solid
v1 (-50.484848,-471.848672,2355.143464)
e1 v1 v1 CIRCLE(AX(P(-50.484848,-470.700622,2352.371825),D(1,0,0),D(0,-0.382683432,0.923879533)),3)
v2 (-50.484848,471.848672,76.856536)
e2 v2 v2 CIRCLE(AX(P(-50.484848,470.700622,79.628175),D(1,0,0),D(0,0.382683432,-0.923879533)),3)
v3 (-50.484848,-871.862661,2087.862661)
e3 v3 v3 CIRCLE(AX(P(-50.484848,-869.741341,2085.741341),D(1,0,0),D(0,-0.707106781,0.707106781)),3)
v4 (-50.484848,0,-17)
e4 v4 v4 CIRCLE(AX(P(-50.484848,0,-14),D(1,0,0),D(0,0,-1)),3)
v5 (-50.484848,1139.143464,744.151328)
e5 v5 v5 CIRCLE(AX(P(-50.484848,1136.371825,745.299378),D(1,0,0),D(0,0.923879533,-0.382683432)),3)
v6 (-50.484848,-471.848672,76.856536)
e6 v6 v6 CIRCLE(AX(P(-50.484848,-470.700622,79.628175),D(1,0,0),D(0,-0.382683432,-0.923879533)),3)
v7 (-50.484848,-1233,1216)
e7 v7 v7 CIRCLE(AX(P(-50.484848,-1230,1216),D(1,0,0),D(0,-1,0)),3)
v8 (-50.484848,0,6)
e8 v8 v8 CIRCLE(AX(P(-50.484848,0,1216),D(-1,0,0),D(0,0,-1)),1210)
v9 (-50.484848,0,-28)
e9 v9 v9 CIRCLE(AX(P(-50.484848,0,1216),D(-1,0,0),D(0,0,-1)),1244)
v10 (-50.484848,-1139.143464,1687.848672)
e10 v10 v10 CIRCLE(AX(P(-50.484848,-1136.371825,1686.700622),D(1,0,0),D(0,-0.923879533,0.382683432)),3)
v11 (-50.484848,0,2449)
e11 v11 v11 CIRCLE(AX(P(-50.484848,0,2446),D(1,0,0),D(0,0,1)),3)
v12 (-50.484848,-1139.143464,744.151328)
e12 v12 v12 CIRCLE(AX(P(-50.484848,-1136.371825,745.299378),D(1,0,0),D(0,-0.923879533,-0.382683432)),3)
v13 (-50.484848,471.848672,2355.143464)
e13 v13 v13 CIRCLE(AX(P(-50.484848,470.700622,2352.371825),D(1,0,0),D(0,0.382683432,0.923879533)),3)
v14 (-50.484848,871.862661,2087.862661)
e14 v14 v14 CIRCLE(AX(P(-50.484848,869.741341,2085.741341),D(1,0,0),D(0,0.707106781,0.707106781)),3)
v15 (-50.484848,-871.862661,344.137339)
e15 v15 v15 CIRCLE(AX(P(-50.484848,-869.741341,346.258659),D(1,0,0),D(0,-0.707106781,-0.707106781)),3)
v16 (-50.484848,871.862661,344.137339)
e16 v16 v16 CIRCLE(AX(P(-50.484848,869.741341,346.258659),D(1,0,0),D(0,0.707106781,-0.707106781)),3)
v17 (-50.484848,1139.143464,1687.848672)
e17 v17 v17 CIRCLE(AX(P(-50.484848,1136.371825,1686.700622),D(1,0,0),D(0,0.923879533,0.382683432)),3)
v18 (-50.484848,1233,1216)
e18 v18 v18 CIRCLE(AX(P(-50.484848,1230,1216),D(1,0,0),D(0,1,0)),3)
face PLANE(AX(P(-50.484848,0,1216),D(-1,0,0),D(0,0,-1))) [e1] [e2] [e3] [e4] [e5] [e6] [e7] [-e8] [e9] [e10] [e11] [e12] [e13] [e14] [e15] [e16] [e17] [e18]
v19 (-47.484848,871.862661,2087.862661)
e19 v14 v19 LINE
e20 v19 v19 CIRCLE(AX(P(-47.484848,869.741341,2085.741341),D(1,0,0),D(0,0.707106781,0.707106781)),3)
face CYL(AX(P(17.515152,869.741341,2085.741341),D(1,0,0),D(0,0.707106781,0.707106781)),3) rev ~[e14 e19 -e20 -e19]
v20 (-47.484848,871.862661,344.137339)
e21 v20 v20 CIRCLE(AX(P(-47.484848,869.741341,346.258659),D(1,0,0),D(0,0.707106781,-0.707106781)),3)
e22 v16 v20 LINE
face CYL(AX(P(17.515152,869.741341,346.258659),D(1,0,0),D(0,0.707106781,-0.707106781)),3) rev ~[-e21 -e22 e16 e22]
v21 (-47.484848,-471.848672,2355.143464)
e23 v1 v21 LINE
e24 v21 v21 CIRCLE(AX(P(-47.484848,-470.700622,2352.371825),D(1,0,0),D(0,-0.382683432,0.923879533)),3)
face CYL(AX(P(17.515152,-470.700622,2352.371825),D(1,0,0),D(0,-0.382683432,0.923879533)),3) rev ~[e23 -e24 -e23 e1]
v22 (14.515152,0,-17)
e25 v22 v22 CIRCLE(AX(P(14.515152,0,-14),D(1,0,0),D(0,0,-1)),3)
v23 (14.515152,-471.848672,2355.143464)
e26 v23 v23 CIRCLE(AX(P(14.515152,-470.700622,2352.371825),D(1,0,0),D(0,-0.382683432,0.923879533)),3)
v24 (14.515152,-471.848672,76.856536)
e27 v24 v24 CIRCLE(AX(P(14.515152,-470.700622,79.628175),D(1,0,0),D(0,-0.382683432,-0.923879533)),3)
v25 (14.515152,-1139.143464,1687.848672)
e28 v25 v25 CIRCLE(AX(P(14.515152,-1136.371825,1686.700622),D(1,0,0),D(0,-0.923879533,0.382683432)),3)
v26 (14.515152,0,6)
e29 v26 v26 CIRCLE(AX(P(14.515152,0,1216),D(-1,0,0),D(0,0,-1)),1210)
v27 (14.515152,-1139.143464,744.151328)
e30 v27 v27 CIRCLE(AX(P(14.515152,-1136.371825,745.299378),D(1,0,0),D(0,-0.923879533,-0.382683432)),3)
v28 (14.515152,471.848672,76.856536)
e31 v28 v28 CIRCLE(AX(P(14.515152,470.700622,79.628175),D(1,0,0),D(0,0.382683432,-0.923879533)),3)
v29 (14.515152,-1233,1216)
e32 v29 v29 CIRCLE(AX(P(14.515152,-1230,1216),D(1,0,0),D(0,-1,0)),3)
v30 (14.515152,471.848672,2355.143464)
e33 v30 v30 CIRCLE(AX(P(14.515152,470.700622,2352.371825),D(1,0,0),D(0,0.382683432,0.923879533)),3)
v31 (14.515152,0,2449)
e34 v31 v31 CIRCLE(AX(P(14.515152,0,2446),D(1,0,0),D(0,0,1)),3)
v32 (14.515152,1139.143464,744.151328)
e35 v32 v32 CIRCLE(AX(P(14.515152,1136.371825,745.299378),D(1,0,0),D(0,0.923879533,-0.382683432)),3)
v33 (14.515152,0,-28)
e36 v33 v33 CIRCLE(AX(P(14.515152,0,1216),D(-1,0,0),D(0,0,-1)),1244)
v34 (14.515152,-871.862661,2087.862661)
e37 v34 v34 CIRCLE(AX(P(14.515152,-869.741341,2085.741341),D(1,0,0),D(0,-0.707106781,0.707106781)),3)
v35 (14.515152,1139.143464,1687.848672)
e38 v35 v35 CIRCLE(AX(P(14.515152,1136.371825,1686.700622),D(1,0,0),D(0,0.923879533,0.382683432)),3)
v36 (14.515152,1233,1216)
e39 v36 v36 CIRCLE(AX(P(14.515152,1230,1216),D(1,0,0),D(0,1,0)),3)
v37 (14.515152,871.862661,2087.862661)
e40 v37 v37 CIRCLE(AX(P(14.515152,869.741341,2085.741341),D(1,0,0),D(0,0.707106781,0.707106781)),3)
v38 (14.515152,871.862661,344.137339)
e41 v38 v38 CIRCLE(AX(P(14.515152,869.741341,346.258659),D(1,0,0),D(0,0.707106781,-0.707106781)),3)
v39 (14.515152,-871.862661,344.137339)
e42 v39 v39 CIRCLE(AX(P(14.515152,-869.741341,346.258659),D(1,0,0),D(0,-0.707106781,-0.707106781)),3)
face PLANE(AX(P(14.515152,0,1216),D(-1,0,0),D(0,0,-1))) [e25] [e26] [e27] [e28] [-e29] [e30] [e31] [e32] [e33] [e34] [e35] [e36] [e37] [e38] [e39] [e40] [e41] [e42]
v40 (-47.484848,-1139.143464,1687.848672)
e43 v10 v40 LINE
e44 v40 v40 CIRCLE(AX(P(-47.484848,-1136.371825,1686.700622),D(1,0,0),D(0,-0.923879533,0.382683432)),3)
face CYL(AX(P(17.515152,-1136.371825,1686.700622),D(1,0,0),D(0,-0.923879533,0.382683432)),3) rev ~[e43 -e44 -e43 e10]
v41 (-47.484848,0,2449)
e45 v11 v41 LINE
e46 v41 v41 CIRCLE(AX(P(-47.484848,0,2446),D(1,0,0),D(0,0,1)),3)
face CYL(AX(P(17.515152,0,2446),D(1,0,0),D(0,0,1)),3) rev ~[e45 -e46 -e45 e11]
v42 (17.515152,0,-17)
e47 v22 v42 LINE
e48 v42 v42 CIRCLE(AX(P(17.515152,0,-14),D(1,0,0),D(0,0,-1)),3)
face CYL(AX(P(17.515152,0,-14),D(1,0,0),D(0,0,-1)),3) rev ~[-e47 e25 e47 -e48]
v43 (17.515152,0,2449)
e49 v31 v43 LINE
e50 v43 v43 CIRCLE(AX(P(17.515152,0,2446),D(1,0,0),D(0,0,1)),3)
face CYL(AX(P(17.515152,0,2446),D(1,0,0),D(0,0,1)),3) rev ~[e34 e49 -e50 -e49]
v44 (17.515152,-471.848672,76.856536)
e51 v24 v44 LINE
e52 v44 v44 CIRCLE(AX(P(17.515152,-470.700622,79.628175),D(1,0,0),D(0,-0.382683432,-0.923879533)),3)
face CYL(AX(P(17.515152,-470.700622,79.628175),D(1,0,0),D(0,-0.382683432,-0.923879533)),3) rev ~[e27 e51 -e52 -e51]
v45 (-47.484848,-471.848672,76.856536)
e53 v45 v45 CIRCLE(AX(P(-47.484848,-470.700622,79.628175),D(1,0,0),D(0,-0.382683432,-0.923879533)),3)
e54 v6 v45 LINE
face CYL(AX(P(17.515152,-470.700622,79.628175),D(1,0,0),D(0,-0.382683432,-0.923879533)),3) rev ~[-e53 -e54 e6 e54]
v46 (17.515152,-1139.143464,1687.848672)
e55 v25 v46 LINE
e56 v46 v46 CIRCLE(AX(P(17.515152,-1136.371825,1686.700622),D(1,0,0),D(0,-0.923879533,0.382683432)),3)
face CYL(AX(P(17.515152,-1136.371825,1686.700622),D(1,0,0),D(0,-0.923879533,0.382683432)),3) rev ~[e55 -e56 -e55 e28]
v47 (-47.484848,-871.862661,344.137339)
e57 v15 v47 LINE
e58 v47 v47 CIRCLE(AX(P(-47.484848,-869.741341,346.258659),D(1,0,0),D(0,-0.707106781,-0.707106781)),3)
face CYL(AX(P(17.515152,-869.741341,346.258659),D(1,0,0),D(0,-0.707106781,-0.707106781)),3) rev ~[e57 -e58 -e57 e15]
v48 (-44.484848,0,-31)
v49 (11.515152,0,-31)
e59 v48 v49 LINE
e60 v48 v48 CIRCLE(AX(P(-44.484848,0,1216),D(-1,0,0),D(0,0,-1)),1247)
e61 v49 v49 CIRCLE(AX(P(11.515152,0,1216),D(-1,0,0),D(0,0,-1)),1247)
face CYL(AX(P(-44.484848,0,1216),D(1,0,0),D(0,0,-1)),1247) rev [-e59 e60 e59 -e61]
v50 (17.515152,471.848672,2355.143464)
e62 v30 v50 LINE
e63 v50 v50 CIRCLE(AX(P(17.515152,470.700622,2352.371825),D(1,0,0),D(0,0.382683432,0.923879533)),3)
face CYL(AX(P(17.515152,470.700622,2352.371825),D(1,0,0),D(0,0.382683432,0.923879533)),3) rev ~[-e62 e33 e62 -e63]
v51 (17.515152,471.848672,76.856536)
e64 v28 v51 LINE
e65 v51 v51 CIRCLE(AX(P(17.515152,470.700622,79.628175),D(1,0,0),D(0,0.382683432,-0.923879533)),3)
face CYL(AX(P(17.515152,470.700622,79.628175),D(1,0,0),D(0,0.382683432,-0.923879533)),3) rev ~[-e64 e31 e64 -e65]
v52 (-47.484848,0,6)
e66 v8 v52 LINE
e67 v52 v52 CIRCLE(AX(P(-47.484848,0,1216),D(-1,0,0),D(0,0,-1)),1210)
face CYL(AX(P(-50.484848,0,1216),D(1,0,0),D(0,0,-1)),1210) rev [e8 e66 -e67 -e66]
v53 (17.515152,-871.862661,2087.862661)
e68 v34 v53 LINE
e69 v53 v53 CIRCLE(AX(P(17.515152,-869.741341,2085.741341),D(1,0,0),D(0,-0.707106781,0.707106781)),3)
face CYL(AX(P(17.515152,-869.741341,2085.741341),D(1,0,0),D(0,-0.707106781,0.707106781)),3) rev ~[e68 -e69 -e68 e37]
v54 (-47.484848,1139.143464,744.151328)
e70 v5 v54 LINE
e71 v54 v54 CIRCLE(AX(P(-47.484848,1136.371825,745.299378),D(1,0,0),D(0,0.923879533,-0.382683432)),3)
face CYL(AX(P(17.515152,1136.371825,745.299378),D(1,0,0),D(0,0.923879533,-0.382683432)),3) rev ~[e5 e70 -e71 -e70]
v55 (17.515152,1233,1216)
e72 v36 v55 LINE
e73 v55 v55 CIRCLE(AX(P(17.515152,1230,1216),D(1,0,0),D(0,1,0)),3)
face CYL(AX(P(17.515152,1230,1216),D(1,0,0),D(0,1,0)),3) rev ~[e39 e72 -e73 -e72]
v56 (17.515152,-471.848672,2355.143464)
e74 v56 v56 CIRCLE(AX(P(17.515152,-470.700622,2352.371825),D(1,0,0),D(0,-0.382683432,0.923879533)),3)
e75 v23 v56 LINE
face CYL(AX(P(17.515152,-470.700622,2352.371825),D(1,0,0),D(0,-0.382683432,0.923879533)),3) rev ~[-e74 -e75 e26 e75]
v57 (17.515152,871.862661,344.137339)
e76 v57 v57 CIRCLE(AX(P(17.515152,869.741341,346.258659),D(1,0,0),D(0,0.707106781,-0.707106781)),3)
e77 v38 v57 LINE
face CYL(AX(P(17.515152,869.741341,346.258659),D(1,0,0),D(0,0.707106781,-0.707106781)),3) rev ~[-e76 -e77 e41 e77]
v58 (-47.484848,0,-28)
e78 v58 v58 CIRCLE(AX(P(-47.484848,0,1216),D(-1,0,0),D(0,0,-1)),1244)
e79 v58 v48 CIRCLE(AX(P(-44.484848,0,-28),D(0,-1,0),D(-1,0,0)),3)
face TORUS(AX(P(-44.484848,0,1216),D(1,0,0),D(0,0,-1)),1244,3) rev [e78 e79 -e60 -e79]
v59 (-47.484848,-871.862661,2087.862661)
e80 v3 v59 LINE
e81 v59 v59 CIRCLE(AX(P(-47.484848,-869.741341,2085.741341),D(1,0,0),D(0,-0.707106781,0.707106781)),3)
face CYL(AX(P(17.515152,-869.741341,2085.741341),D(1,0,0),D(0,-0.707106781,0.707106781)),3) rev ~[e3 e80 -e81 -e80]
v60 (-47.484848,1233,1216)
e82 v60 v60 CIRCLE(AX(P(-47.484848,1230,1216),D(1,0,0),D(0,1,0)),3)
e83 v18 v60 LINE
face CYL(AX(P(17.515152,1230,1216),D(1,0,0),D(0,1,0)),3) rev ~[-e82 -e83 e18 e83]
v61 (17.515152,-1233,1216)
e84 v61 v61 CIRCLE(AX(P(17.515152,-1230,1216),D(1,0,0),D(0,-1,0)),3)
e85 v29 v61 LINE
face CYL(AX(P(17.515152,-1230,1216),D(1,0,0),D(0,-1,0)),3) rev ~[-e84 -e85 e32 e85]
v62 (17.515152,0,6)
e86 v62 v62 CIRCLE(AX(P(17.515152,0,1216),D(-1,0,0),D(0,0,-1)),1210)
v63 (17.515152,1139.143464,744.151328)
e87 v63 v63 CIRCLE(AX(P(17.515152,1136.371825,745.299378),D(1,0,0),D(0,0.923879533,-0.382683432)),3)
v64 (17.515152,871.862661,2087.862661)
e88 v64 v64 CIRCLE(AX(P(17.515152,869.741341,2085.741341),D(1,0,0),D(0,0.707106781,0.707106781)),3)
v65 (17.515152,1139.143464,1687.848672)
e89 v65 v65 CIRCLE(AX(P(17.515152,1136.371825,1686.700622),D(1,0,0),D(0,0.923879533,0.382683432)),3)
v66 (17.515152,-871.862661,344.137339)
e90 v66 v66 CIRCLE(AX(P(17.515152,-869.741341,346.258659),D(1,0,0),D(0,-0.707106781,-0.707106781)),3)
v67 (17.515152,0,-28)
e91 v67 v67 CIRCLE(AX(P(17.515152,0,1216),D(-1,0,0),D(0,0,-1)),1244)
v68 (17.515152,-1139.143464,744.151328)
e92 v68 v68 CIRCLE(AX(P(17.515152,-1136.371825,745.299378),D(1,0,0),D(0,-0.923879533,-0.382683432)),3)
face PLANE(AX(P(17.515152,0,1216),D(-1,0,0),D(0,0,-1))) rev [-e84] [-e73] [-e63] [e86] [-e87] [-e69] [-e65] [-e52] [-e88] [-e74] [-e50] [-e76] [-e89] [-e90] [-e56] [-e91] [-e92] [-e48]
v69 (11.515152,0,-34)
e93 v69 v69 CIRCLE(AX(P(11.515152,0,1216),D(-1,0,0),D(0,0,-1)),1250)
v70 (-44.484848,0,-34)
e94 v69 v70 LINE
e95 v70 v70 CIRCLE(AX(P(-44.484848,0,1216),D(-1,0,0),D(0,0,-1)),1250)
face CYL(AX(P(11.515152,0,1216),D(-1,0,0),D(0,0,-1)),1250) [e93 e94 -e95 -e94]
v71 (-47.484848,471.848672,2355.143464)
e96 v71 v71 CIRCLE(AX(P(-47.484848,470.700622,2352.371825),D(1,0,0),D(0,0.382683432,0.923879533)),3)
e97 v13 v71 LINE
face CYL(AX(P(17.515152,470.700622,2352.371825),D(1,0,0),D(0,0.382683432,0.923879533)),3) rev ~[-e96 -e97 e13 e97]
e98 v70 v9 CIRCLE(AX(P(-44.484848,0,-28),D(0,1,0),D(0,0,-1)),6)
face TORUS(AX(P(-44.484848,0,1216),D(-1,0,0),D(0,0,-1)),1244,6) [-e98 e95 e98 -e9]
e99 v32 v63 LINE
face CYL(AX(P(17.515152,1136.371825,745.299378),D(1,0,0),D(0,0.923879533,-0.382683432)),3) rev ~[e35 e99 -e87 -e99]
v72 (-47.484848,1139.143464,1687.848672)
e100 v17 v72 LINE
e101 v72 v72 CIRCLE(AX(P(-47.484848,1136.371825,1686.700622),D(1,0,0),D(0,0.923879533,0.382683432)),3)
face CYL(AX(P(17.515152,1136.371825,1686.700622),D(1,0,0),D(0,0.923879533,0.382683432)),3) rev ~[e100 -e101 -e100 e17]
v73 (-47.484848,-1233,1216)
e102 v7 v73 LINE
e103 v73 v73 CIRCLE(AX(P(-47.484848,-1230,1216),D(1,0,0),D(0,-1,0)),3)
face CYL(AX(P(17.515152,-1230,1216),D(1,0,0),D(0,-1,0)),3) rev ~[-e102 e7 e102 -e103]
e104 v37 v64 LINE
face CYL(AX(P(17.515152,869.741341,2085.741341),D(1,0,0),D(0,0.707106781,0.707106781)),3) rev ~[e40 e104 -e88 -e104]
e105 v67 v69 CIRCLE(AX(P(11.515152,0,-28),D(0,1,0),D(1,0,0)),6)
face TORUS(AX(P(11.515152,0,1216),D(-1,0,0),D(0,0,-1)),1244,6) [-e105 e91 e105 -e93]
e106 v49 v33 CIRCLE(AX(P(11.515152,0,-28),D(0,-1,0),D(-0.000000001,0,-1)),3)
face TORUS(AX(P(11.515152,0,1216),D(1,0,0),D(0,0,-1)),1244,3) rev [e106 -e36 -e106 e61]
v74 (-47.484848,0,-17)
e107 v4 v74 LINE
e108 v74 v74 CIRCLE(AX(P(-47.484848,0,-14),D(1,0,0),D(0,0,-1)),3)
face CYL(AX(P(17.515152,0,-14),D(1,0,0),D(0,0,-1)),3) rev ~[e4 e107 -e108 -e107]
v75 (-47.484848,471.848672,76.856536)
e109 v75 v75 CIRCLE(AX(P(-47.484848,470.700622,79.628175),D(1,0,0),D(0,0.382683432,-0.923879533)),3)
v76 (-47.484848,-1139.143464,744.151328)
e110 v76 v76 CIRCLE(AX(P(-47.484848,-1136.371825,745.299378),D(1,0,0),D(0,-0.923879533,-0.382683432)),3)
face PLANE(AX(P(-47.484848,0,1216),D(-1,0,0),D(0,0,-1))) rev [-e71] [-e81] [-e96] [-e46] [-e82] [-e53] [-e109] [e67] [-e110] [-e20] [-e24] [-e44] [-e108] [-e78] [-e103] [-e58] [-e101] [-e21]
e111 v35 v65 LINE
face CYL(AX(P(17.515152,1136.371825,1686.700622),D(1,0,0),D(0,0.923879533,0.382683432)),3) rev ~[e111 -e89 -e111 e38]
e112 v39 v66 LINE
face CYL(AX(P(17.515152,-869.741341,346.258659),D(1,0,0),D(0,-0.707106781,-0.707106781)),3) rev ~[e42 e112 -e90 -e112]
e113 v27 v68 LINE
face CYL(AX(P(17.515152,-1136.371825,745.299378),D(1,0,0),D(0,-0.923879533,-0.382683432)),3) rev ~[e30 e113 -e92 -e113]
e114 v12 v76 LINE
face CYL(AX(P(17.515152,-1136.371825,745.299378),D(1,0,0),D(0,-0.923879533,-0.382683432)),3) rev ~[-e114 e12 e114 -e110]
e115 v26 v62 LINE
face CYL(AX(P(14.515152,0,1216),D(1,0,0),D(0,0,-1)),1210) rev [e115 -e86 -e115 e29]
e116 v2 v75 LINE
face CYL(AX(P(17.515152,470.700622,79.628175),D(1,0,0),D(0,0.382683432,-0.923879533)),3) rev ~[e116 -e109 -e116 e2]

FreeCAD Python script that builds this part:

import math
import FreeCAD as App
import Part
import Sketcher
from FreeCAD import Vector
Q = App.Units.Quantity

doc = App.newDocument("Part")
body = doc.addObject("PartDesign::Body", "Body")

# Sketch on XZ plane
sketch1 = doc.addObject("Sketcher::SketchObject", "Sketch")
body.addObject(sketch1)
sketch1.AttachmentSupport = (doc.XZ_Plane, [""])
sketch1.MapMode = "FlatFace"
sketch1.addGeometry([
    Part.LineSegment(Vector(11.5, -34, 0), Vector(-44.5, -34, 0)),  # 0
    Part.ArcOfCircle(Part.Circle(Vector(-44.5, -28, 0), Vector(0, 0, 1), 6), math.radians(180), math.radians(270)),  # 1
    Part.LineSegment(Vector(-50.5, -28, 0), Vector(-50.5, 6, 0)),  # 2
    Part.LineSegment(Vector(-50.5, 6, 0), Vector(-47.5, 6, 0)),  # 3
    Part.LineSegment(Vector(-47.5, 6, 0), Vector(-47.5, -28, 0)),  # 4
    Part.ArcOfCircle(Part.Circle(Vector(-44.5, -28, 0), Vector(0, 0, 1), 3), math.radians(180), math.radians(270)),  # 5
    Part.LineSegment(Vector(-44.5, -31, 0), Vector(11.5, -31, 0)),  # 6
    Part.ArcOfCircle(Part.Circle(Vector(11.5, -28, 0), Vector(0, 0, 1), 3), math.radians(-90), math.radians(0)),  # 7
    Part.LineSegment(Vector(14.5, -28, 0), Vector(14.5, 6, 0)),  # 8
    Part.LineSegment(Vector(14.5, 6, 0), Vector(17.5, 6, 0)),  # 9
    Part.LineSegment(Vector(17.5, 6, 0), Vector(17.5, -28, 0)),  # 10
    Part.ArcOfCircle(Part.Circle(Vector(11.5, -28, 0), Vector(0, 0, 1), 6), math.radians(-90), math.radians(0)),  # 11
], False)
sketch1.addGeometry(Part.LineSegment(Vector(17.5, 1216, 0), Vector(-50.5, 1216, 0)), True)  # axis
sketch1.addConstraint([
    Sketcher.Constraint("Tangent", 0, 2, 1, 2),
    Sketcher.Constraint("Tangent", 1, 1, 2, 1),
    Sketcher.Constraint("Coincident", 2, 2, 3, 1),
    Sketcher.Constraint("Coincident", 3, 2, 4, 1),
    Sketcher.Constraint("Tangent", 4, 2, 5, 1),
    Sketcher.Constraint("Tangent", 5, 2, 6, 1),
    Sketcher.Constraint("Tangent", 6, 2, 7, 1),
    Sketcher.Constraint("Tangent", 7, 2, 8, 1),
    Sketcher.Constraint("Coincident", 8, 2, 9, 1),
    Sketcher.Constraint("Coincident", 9, 2, 10, 1),
    Sketcher.Constraint("Tangent", 10, 2, 11, 2),
    Sketcher.Constraint("Tangent", 11, 1, 0, 1),
    Sketcher.Constraint("Horizontal", 0),
    Sketcher.Constraint("Vertical", 2),
    Sketcher.Constraint("Horizontal", 3),
    Sketcher.Constraint("Vertical", 4),
    Sketcher.Constraint("Horizontal", 6),
    Sketcher.Constraint("Vertical", 8),
    Sketcher.Constraint("Horizontal", 9),
    Sketcher.Constraint("Vertical", 10),
    Sketcher.Constraint("Horizontal", 12),
    Sketcher.Constraint("Coincident", 5, 3, 1, 3),
    Sketcher.Constraint("Coincident", 11, 3, 7, 3),
    Sketcher.Constraint("Equal", 5, 7),
    Sketcher.Constraint("Horizontal", 3, 2, 8, 2),
    Sketcher.Constraint("Vertical", 10, 2, 12, 1),
    Sketcher.Constraint("Vertical", 2, 2, 12, 2),
    Sketcher.Constraint("Radius", 1, Q("6 mm")),
    Sketcher.Constraint("Radius", 5, Q("3 mm")),
    Sketcher.Constraint("DistanceX", 0, 2, 0, 1, Q("56 mm")),
    Sketcher.Constraint("DistanceY", 2, 1, 2, 2, Q("34 mm")),
    Sketcher.Constraint("DistanceY", 1, 3, -1, 1, Q("28 mm")),
    Sketcher.Constraint("DistanceY", -1, 1, 12, 1, Q("1216 mm")),
    Sketcher.Constraint("DistanceX", 1, 3, -1, 1, Q("44.484848 mm")),
])
revolution = doc.addObject("PartDesign::Revolution", "Revolution")
body.addObject(revolution)
revolution.Profile = sketch1
revolution.ReferenceAxis = (sketch1, ["Axis0"])
revolution.Angle = 360

# Sketch on YZ plane
sketch2 = doc.addObject("Sketcher::SketchObject", "Sketch001")
body.addObject(sketch2)
sketch2.AttachmentSupport = (doc.YZ_Plane, [""])
sketch2.MapMode = "FlatFace"
sketch2.AttachmentOffset = App.Placement(Vector(0, 0, 17.515152), App.Rotation())
sketch2.addGeometry(Part.Circle(Vector(0, -14, 0), Vector(0, 0, 1), 3), False)
sketch2.addConstraint([
    Sketcher.Constraint("PointOnObject", 0, 3, -2),
    Sketcher.Constraint("Diameter", 0, Q("6 mm")),
    Sketcher.Constraint("DistanceY", 0, 3, -1, 1, Q("14 mm")),
])
pocket1 = doc.addObject("PartDesign::Pocket", "Pocket")
body.addObject(pocket1)
pocket1.Profile = sketch2
pocket1.Length = 5533.104772
pocket1.Midplane = True
doc.recompute()

datumline = doc.addObject("PartDesign::Line", "DatumLine")
body.addObject(datumline)
datumline.Placement = App.Placement(Vector(0, 0, 1216), App.Rotation(Vector(0, 0, 1), Vector(1, 0, 0)))
polarpattern = doc.addObject("PartDesign::PolarPattern", "PolarPattern")
body.addObject(polarpattern)
polarpattern.Originals = [pocket1]
polarpattern.Axis = (datumline, [""])
polarpattern.Angle = 360
polarpattern.Occurrences = 16
body.Tip = polarpattern

doc.recompute()
